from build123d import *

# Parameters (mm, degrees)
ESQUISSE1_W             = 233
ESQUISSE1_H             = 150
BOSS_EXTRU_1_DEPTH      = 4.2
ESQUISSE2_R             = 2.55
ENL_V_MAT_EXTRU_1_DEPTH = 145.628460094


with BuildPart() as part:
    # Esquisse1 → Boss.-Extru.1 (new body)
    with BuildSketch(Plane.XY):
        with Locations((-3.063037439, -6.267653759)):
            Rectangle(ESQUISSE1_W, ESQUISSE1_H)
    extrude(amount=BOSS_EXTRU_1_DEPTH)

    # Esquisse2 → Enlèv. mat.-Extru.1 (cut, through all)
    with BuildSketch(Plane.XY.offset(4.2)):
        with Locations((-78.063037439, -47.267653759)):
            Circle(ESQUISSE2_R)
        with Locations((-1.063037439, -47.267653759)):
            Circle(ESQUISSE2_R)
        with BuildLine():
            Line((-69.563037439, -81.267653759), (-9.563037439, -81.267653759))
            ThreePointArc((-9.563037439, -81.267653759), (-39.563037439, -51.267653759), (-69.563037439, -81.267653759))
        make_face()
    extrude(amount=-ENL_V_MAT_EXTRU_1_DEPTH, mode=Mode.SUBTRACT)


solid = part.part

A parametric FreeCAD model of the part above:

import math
import FreeCAD as App
import Part
import Sketcher
from FreeCAD import Vector


def add_polygon(sketch, points):
    """Adds a closed chain of lines whose ends are joined by coincident constraints."""
    first, n = sketch.GeometryCount, len(points)
    for a, b in zip(points, points[1:] + points[:1]):
        sketch.addGeometry(Part.LineSegment(App.Vector(*a, 0), App.Vector(*b, 0)), False)
    for i in range(n):
        sketch.addConstraint(Sketcher.Constraint("Coincident", first + i, 2, first + (i + 1) % n, 1))

doc = App.newDocument("Part")
params = doc.addObject("Spreadsheet::Sheet", "Params")
for row, (alias, value) in enumerate([
    ("sketch1_width", "233 mm"),
    ("sketch1_height", "150 mm"),
    ("pad1_length", "4.2 mm"),
    ("sketch2_radius", "30 mm"),
    ("sketch2_diameter", "5.1 mm"),
], start=1):
    params.set(f"A{row}", alias)
    params.set(f"B{row}", "=" + value)
    params.setAlias(f"B{row}", alias)

body = doc.addObject("PartDesign::Body", "Body")

sketch1 = body.newObject("Sketcher::SketchObject", "Sketch")
sketch1.AttachmentSupport = (doc.getObject("XY_Plane"), [""])
sketch1.MapMode = "FlatFace"
add_polygon(sketch1, [(-120, 69), (-120, -81), (113, -81), (113, 69)])
sketch1.addConstraint(Sketcher.Constraint("Vertical", 0))
sketch1.addConstraint(Sketcher.Constraint("Horizontal", 1))
sketch1.addConstraint(Sketcher.Constraint("Vertical", 2))
sketch1.addConstraint(Sketcher.Constraint("Horizontal", 3))
sketch1.addConstraint(Sketcher.Constraint("DistanceX", 1, 1, 1, 2, 233.0))
sketch1.addConstraint(Sketcher.Constraint("DistanceY", 0, 2, 0, 1, 150.0))
sketch1.addConstraint(Sketcher.Constraint("DistanceX", 0, 2, -1, 1, 119.563037))
sketch1.addConstraint(Sketcher.Constraint("DistanceY", 0, 2, -1, 1, 81.267654))
sketch1.setExpression("Constraints[8]", "Params.sketch1_width")
sketch1.setExpression("Constraints[9]", "Params.sketch1_height")
pad1 = body.newObject("PartDesign::Pad", "Pad")
pad1.Profile = sketch1
pad1.setExpression("Length", "Params.pad1_length")

sketch2 = body.newObject("Sketcher::SketchObject", "Sketch001")
sketch2.AttachmentSupport = (doc.getObject("XY_Plane"), [""])
sketch2.MapMode = "FlatFace"
sketch2.AttachmentOffset = App.Placement(Vector(0, 0, 4.2), App.Rotation())
sketch2.addGeometry(Part.Circle(Vector(-78.1, -47.3, 0), Vector(0, 0, 1), 2.5), False)
sketch2.addGeometry(Part.Circle(Vector(-1.1, -47.3, 0), Vector(0, 0, 1), 2.5), False)
sketch2.addGeometry(Part.LineSegment(Vector(-69.6, -81.3, 0), Vector(-9.6, -81.3, 0)), False)
sketch2.addGeometry(Part.ArcOfCircle(Part.Circle(Vector(-39.6, -81.3, 0), Vector(0, 0, 1), 30), math.radians(0), math.radians(180)), False)
sketch2.addConstraint(Sketcher.Constraint("Coincident", 2, 1, 3, 2))
sketch2.addConstraint(Sketcher.Constraint("Coincident", 3, 1, 2, 2))
sketch2.addConstraint(Sketcher.Constraint("Horizontal", 2))
sketch2.addConstraint(Sketcher.Constraint("Equal", 0, 1))
sketch2.addConstraint(Sketcher.Constraint("Horizontal", 0, 3, 1, 3))
sketch2.addConstraint(Sketcher.Constraint("Horizontal", 3, 3, 2, 1))
sketch2.addConstraint(Sketcher.Constraint("Radius", 3, 30.0))
sketch2.addConstraint(Sketcher.Constraint("Diameter", 0, 5.1))
sketch2.addConstraint(Sketcher.Constraint("DistanceX", 0, 3, 1, 3, 77.0))
sketch2.addConstraint(Sketcher.Constraint("DistanceY", 3, 3, 0, 3, 34.0))
sketch2.addConstraint(Sketcher.Constraint("DistanceX", 0, 3, 3, 3, 38.5))
sketch2.addConstraint(Sketcher.Constraint("DistanceX", 0, 3, -1, 1, 78.063037))
sketch2.addConstraint(Sketcher.Constraint("DistanceY", 0, 3, -1, 1, 47.267654))
sketch2.setExpression("Constraints[6]", "Params.sketch2_radius")
sketch2.setExpression("Constraints[7]", "Params.sketch2_diameter")
pocket1 = body.newObject("PartDesign::Pocket", "Pocket")
pocket1.Profile = sketch2
pocket1.Type = "ThroughAll"

doc.recompute()
